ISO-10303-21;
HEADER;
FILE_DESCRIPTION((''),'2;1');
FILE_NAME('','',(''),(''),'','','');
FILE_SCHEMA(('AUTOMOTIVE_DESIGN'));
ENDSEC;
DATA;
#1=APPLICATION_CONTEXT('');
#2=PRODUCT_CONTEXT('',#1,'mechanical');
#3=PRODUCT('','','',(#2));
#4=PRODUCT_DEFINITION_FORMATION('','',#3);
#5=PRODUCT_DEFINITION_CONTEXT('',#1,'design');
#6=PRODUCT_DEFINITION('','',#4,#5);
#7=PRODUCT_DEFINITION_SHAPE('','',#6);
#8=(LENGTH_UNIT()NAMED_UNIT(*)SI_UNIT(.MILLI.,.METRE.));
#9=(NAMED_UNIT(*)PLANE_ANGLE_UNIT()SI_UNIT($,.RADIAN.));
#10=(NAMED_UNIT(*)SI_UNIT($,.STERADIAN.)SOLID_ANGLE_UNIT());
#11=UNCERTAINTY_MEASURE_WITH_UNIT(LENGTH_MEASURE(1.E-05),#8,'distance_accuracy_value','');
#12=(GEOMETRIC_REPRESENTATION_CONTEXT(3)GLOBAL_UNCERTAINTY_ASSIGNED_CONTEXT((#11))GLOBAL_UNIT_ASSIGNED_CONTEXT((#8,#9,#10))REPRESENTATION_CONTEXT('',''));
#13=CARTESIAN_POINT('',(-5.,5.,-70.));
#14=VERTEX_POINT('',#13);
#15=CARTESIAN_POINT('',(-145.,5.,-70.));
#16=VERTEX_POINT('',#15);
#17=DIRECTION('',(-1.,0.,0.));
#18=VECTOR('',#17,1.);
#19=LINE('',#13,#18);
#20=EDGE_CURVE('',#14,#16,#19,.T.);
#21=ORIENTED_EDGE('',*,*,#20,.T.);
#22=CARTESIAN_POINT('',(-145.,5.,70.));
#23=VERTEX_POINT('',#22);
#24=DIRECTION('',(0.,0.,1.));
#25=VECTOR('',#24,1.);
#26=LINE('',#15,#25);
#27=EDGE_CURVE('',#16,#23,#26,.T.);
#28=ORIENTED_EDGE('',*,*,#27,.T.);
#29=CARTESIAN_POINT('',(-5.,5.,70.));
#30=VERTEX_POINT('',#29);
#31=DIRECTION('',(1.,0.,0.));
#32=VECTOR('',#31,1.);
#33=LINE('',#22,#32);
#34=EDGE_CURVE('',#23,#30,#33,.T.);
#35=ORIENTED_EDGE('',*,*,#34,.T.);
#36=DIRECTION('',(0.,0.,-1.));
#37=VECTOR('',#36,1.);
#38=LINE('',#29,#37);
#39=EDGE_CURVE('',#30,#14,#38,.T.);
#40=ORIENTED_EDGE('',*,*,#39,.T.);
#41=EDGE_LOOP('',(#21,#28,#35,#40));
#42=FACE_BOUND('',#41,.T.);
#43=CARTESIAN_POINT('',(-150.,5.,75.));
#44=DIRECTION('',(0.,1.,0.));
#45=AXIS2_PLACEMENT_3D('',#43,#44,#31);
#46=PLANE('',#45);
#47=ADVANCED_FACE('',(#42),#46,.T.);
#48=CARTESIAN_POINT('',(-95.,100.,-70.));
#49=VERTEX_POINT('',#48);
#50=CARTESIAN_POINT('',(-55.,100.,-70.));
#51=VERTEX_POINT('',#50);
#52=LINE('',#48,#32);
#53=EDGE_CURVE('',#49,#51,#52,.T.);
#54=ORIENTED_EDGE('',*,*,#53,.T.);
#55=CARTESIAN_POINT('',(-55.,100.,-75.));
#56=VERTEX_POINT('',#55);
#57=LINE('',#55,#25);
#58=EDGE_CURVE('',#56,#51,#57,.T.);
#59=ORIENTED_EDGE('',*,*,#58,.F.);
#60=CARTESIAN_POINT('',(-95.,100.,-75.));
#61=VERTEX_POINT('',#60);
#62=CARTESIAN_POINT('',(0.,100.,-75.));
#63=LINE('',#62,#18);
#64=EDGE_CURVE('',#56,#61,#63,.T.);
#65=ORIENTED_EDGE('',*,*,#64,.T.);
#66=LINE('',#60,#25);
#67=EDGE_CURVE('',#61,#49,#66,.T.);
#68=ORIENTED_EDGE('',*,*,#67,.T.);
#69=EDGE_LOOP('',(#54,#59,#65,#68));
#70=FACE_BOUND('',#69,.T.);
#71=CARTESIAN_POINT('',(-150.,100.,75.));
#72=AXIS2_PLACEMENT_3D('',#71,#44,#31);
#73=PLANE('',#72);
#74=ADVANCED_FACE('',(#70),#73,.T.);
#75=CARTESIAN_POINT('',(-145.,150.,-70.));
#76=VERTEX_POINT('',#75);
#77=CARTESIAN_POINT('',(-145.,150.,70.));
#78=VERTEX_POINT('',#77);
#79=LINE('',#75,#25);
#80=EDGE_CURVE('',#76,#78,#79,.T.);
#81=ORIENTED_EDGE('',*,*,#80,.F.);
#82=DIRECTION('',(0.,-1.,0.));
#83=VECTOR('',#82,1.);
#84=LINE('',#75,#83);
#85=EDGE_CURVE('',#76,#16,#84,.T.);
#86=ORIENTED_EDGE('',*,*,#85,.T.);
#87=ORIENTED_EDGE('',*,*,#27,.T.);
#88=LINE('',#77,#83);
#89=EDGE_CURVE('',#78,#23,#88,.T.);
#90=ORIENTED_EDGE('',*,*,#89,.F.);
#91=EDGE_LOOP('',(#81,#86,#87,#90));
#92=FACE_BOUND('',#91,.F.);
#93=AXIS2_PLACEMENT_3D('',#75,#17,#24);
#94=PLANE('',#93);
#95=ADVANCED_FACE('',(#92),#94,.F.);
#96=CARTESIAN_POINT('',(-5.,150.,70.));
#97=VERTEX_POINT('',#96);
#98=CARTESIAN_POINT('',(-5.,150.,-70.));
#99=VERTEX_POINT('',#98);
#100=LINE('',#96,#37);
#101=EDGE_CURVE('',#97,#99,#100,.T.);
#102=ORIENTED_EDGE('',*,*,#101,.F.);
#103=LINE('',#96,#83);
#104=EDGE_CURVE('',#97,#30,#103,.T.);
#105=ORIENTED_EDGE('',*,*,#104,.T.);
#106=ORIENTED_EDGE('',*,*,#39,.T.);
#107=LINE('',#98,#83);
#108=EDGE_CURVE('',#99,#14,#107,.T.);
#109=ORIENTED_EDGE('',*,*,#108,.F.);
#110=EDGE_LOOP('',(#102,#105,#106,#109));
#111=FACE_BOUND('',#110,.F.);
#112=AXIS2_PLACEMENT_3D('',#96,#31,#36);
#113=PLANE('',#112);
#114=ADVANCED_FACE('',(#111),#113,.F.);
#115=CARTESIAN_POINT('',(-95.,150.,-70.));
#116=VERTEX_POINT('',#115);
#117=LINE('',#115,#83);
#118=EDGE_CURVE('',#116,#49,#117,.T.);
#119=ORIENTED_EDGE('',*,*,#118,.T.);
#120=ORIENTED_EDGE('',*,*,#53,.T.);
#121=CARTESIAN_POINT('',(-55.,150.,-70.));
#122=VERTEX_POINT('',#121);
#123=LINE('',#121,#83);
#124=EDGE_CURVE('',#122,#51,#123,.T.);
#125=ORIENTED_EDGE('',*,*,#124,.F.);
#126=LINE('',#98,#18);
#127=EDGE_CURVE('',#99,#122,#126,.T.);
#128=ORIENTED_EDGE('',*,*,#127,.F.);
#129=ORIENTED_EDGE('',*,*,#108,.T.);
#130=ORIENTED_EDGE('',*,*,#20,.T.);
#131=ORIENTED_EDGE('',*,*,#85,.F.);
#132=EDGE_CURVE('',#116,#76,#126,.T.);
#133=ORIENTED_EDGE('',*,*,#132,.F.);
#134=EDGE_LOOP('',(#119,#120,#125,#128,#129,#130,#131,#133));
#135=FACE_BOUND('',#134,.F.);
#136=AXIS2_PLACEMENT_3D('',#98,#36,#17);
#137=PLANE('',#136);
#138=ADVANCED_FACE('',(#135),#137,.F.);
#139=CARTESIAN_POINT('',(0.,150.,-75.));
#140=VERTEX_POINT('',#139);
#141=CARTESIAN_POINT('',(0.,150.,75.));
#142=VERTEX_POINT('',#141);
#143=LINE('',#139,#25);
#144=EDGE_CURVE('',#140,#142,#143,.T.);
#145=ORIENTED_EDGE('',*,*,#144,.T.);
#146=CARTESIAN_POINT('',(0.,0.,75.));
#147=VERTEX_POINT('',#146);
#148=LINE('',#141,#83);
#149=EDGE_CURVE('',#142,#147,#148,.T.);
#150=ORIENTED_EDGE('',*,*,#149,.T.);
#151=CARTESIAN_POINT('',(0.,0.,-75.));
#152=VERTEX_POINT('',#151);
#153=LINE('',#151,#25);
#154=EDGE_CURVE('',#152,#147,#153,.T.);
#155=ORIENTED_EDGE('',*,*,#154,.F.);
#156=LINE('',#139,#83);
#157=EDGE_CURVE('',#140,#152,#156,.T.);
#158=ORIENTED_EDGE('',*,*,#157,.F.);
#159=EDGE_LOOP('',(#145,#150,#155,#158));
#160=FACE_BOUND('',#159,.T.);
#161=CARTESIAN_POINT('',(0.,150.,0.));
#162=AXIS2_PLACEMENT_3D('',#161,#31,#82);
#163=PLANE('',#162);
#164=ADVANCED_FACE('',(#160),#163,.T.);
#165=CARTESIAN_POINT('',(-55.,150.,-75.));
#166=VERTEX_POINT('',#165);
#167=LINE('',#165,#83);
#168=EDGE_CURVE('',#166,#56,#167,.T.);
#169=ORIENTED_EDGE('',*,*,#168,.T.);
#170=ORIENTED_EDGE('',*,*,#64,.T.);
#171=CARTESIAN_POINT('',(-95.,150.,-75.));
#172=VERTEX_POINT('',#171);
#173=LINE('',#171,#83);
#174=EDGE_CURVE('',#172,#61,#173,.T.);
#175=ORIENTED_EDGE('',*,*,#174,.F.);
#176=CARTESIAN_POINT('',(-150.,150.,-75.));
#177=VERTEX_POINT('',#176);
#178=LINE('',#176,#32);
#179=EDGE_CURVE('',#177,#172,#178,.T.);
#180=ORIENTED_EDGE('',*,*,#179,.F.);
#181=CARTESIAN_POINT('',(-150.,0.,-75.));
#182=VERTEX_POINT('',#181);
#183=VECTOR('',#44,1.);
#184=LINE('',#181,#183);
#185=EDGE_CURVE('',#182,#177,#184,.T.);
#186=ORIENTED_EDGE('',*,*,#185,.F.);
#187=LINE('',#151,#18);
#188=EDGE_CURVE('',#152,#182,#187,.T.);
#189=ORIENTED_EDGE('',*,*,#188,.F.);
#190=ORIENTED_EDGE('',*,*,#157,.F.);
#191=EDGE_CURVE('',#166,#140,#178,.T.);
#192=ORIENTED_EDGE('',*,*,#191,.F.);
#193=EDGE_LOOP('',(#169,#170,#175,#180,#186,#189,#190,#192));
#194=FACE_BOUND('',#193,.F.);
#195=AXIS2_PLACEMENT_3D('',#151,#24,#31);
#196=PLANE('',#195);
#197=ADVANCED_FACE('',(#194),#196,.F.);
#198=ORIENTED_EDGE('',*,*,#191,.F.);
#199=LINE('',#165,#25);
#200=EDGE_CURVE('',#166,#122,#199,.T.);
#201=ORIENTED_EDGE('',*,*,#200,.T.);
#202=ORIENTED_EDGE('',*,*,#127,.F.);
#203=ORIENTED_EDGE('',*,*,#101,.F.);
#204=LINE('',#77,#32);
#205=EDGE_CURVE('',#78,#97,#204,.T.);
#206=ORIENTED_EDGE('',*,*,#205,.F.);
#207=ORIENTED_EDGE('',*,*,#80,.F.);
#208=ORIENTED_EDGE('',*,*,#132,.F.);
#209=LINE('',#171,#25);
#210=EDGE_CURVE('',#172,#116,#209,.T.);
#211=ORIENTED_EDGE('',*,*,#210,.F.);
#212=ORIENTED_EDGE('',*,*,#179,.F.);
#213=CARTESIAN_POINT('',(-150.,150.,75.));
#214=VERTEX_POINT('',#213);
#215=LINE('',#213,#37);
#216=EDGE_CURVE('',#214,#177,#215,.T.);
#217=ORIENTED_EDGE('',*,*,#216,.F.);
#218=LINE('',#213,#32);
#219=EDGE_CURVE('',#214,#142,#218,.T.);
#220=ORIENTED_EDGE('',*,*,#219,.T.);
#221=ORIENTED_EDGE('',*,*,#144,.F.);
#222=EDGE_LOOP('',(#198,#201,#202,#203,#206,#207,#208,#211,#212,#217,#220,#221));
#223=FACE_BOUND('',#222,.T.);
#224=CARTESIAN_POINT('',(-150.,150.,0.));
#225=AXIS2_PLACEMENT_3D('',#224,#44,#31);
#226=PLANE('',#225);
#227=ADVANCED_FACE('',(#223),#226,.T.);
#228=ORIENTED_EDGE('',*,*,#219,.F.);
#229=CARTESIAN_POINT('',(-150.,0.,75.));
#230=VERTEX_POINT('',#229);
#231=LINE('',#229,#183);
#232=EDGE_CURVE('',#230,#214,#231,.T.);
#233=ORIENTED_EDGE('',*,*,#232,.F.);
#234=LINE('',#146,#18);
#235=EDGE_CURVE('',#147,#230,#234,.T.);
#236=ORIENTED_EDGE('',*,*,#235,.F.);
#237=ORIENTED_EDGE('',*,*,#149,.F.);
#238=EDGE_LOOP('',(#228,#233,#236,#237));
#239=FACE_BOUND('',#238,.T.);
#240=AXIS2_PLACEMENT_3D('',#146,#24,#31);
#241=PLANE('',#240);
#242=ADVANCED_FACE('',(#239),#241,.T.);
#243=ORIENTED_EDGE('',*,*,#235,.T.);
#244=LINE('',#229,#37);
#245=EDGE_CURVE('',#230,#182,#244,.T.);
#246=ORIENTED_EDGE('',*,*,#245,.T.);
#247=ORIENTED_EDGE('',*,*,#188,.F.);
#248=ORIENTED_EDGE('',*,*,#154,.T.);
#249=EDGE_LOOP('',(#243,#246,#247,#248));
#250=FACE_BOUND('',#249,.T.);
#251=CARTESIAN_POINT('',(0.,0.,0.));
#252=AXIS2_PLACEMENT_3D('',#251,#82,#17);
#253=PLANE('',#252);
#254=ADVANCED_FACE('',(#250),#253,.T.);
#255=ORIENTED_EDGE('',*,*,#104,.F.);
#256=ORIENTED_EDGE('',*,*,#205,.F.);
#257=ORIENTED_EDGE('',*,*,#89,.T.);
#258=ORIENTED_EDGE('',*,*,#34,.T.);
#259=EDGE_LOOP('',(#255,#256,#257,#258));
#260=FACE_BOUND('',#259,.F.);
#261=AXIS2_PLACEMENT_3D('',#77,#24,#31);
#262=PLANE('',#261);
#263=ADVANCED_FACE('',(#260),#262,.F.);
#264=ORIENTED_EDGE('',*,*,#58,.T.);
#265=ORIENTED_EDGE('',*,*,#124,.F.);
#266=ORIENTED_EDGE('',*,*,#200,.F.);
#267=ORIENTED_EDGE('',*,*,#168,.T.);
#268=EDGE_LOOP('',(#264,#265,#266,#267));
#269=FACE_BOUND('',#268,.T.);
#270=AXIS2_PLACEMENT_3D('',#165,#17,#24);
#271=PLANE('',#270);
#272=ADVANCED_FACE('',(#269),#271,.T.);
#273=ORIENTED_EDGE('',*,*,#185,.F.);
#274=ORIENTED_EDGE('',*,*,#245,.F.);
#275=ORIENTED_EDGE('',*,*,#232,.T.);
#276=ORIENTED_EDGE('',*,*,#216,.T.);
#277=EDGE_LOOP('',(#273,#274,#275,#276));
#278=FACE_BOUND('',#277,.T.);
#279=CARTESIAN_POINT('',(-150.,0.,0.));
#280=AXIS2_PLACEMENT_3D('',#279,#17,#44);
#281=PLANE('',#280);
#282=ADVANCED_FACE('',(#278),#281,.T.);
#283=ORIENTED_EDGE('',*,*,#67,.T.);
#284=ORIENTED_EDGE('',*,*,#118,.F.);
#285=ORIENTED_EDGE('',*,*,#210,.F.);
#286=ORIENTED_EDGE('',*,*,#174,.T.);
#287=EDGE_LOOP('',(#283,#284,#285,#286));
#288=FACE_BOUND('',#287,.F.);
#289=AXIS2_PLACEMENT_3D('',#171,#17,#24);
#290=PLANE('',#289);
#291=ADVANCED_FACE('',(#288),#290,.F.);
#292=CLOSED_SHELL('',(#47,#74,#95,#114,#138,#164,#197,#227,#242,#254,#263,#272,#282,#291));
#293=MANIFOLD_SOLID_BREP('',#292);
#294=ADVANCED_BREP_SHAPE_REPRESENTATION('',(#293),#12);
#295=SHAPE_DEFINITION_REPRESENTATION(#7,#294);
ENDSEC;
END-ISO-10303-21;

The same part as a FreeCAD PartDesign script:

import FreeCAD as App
import Part
import Sketcher

V = App.Vector

doc = App.newDocument("Part")
body = doc.addObject("PartDesign::Body", "Body")

# Sketch on XY plane
sketch1 = body.newObject("Sketcher::SketchObject", "Sketch")
sketch1.AttachmentSupport = (doc.getObject("XY_Plane"), [""])
sketch1.MapMode = "FlatFace"
sketch1.addGeometry([
    Part.LineSegment(V(-150, 0, 0), V(0, 0, 0)),
    Part.LineSegment(V(0, 0, 0), V(0, 150, 0)),
    Part.LineSegment(V(0, 150, 0), V(-150, 150, 0)),
    Part.LineSegment(V(-150, 150, 0), V(-150, 0, 0)),
], False)
sketch1.addConstraint([
    Sketcher.Constraint("Coincident", 0, 2, 1, 1),
    Sketcher.Constraint("Coincident", 1, 2, 2, 1),
    Sketcher.Constraint("Coincident", 2, 2, 3, 1),
    Sketcher.Constraint("Coincident", 3, 2, 0, 1),
    Sketcher.Constraint("Horizontal", 0),
    Sketcher.Constraint("Vertical", 1),
    Sketcher.Constraint("Horizontal", 2),
    Sketcher.Constraint("Vertical", 3),
    Sketcher.Constraint("Coincident", 0, 2, -1, 1),
    Sketcher.Constraint("Equal", 2, 1),
    Sketcher.Constraint("DistanceX", 0, 1, 0, 2, 150.0),
])
pad1 = body.newObject("PartDesign::Pad", "Pad")
pad1.Profile = sketch1
pad1.Length = 150
pad1.Midplane = True

# Sketch on XZ plane
sketch2 = body.newObject("Sketcher::SketchObject", "Sketch001")
sketch2.AttachmentSupport = (doc.getObject("XZ_Plane"), [""])
sketch2.MapMode = "FlatFace"
sketch2.AttachmentOffset = App.Placement(V(0, 0, -150), App.Rotation())
sketch2.addGeometry([
    Part.LineSegment(V(-145, -70, 0), V(-145, 70, 0)),
    Part.LineSegment(V(-145, 70, 0), V(-5, 70, 0)),
    Part.LineSegment(V(-5, 70, 0), V(-5, -70, 0)),
    Part.LineSegment(V(-5, -70, 0), V(-145, -70, 0)),
], False)
sketch2.addConstraint([
    Sketcher.Constraint("Coincident", 0, 2, 1, 1),
    Sketcher.Constraint("Coincident", 1, 2, 2, 1),
    Sketcher.Constraint("Coincident", 2, 2, 3, 1),
    Sketcher.Constraint("Coincident", 3, 2, 0, 1),
    Sketcher.Constraint("Vertical", 0),
    Sketcher.Constraint("Horizontal", 1),
    Sketcher.Constraint("Vertical", 2),
    Sketcher.Constraint("Horizontal", 3),
    Sketcher.Constraint("Equal", 3, 0),
    Sketcher.Constraint("DistanceX", 1, 2, -1, 1, 5.0),
    Sketcher.Constraint("DistanceX", 1, 1, 1, 2, 140.0),
    Sketcher.Constraint("DistanceY", -1, 1, 0, 2, 70.0),
])
pocket1 = body.newObject("PartDesign::Pocket", "Pocket")
pocket1.Profile = sketch2
pocket1.Length = 145
pocket1.Reversed = True

# Sketch on XZ plane
sketch3 = body.newObject("Sketcher::SketchObject", "Sketch002")
sketch3.AttachmentSupport = (doc.getObject("XZ_Plane"), [""])
sketch3.MapMode = "FlatFace"
sketch3.AttachmentOffset = App.Placement(V(0, 0, -150), App.Rotation())
sketch3.addGeometry([
    Part.LineSegment(V(-55, -75, 0), V(-95, -75, 0)),
    Part.LineSegment(V(-95, -75, 0), V(-95, -70, 0)),
    Part.LineSegment(V(-95, -70, 0), V(-55, -70, 0)),
    Part.LineSegment(V(-55, -70, 0), V(-55, -75, 0)),
], False)
sketch3.addConstraint([
    Sketcher.Constraint("Coincident", 0, 2, 1, 1),
    Sketcher.Constraint("Coincident", 1, 2, 2, 1),
    Sketcher.Constraint("Coincident", 2, 2, 3, 1),
    Sketcher.Constraint("Coincident", 3, 2, 0, 1),
    Sketcher.Constraint("Horizontal", 0),
    Sketcher.Constraint("Vertical", 1),
    Sketcher.Constraint("Horizontal", 2),
    Sketcher.Constraint("Vertical", 3),
    Sketcher.Constraint("DistanceX", 0, 2, 0, 1, 40.0),
    Sketcher.Constraint("DistanceY", 1, 1, 1, 2, 5.0),
    Sketcher.Constraint("DistanceX", 0, 2, -1, 1, 95.0),
    Sketcher.Constraint("DistanceY", 0, 2, -1, 1, 75.0),
])
pocket2 = body.newObject("PartDesign::Pocket", "Pocket001")
pocket2.Profile = sketch3
pocket2.Length = 50
pocket2.Reversed = True

doc.recompute()
